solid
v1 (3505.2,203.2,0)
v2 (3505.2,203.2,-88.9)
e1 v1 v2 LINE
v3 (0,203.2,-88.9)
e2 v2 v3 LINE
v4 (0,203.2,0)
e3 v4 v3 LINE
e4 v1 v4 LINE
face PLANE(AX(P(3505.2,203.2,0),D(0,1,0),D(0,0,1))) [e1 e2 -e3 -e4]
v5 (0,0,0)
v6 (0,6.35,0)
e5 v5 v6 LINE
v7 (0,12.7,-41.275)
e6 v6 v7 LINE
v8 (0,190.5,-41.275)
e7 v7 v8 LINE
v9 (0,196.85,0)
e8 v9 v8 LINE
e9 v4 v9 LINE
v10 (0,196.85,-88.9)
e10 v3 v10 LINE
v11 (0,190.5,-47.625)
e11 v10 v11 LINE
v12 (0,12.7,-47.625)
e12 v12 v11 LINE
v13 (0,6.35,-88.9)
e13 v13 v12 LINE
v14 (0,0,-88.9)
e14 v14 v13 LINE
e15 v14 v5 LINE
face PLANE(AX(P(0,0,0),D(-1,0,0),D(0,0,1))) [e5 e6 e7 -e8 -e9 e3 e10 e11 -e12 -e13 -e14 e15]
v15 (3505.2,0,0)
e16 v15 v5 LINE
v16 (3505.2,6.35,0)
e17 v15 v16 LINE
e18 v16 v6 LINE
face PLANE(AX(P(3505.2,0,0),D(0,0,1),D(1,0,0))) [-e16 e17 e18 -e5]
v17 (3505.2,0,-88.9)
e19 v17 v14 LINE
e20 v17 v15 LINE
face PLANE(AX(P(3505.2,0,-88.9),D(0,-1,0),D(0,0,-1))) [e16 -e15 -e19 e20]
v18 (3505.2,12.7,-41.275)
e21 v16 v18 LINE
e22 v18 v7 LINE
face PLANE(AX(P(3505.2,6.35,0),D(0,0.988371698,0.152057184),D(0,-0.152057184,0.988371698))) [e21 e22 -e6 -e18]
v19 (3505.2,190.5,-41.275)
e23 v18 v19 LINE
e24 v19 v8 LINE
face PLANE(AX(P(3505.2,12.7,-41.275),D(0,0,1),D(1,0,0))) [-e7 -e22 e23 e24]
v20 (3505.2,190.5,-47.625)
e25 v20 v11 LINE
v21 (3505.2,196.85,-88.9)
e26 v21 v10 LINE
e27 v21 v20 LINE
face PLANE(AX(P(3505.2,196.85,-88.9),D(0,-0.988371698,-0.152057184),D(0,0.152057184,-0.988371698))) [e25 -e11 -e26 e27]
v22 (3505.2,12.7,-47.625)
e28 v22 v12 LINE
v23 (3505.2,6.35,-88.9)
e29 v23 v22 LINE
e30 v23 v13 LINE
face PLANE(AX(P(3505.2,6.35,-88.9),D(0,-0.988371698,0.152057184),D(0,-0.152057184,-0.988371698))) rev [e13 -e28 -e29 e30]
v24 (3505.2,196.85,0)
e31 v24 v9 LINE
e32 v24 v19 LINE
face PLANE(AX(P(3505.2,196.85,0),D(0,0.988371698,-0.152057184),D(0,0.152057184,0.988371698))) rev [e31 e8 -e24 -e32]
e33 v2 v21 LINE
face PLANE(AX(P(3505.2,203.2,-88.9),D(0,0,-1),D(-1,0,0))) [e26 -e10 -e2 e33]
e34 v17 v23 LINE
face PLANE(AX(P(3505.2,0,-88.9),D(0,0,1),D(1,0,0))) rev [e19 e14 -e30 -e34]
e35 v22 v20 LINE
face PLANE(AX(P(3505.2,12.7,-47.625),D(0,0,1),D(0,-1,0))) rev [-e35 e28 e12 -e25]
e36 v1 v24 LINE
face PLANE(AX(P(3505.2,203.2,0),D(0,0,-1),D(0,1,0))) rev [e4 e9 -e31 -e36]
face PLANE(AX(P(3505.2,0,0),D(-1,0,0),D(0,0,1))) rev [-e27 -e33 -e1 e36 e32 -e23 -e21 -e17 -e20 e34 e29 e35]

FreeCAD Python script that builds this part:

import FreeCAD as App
import Part
import Sketcher
from FreeCAD import Vector
Q = App.Units.Quantity


def add_polygon(sketch, points):
    """Adds a closed chain of lines whose ends are joined by coincident constraints."""
    first, n = sketch.GeometryCount, len(points)
    for a, b in zip(points, points[1:] + points[:1]):
        sketch.addGeometry(Part.LineSegment(App.Vector(*a, 0), App.Vector(*b, 0)), False)
    for i in range(n):
        sketch.addConstraint(Sketcher.Constraint("Coincident", first + i, 2, first + (i + 1) % n, 1))

doc = App.newDocument("Part")
body = doc.addObject("PartDesign::Body", "Body")

# Sketch on YZ plane
sketch1 = body.newObject("Sketcher::SketchObject", "Sketch")
sketch1.AttachmentSupport = (doc.getObject("YZ_Plane"), [""])
sketch1.MapMode = "FlatFace"
add_polygon(sketch1, [(6, 0), (0, 0), (0, -89), (6, -89), (13, -48), (190, -48), (197, -89), (203, -89), (203, 0), (197, 0), (190, -41), (13, -41)])  # lines 0-11
sketch1.addConstraint([
    Sketcher.Constraint("Horizontal", 0),
    Sketcher.Constraint("Vertical", 1),
    Sketcher.Constraint("Horizontal", 2),
    Sketcher.Constraint("Horizontal", 4),
    Sketcher.Constraint("Horizontal", 6),
    Sketcher.Constraint("Vertical", 7),
    Sketcher.Constraint("Horizontal", 8),
    Sketcher.Constraint("Horizontal", 10),
    Sketcher.Constraint("Coincident", 0, 2, -1, 1),
    Sketcher.Constraint("PointOnObject", 7, 2, -1),
    Sketcher.Constraint("Parallel", 3, 9),
    Sketcher.Constraint("Parallel", 5, 11),
    Sketcher.Constraint("Horizontal", 2, 2, 5, 2),
    Sketcher.Constraint("Vertical", 5, 2, 8, 2),
    Sketcher.Constraint("Vertical", 4, 2, 9, 2),
    Sketcher.Constraint("Vertical", 3, 2, 10, 2),
    Sketcher.Constraint("Vertical", 2, 2, 11, 2),
    Sketcher.Constraint("Equal", 2, 6),
    Sketcher.Constraint("DistanceX", 4, 1, 4, 2, Q("7 in")),
    Sketcher.Constraint("DistanceY", 1, 2, 1, 1, Q("3.5 in")),
    Sketcher.Constraint("DistanceX", -1, 1, 6, 2, Q("8 in")),
    Sketcher.Constraint("DistanceX", 0, 2, 0, 1, Q("0.25 in")),
    Sketcher.Constraint("DistanceY", 4, 2, 9, 2, Q("0.25 in")),
])
pad1 = body.newObject("PartDesign::Pad", "Pad")
pad1.Profile = sketch1
pad1.Length = Q("138 in")

doc.recompute()
